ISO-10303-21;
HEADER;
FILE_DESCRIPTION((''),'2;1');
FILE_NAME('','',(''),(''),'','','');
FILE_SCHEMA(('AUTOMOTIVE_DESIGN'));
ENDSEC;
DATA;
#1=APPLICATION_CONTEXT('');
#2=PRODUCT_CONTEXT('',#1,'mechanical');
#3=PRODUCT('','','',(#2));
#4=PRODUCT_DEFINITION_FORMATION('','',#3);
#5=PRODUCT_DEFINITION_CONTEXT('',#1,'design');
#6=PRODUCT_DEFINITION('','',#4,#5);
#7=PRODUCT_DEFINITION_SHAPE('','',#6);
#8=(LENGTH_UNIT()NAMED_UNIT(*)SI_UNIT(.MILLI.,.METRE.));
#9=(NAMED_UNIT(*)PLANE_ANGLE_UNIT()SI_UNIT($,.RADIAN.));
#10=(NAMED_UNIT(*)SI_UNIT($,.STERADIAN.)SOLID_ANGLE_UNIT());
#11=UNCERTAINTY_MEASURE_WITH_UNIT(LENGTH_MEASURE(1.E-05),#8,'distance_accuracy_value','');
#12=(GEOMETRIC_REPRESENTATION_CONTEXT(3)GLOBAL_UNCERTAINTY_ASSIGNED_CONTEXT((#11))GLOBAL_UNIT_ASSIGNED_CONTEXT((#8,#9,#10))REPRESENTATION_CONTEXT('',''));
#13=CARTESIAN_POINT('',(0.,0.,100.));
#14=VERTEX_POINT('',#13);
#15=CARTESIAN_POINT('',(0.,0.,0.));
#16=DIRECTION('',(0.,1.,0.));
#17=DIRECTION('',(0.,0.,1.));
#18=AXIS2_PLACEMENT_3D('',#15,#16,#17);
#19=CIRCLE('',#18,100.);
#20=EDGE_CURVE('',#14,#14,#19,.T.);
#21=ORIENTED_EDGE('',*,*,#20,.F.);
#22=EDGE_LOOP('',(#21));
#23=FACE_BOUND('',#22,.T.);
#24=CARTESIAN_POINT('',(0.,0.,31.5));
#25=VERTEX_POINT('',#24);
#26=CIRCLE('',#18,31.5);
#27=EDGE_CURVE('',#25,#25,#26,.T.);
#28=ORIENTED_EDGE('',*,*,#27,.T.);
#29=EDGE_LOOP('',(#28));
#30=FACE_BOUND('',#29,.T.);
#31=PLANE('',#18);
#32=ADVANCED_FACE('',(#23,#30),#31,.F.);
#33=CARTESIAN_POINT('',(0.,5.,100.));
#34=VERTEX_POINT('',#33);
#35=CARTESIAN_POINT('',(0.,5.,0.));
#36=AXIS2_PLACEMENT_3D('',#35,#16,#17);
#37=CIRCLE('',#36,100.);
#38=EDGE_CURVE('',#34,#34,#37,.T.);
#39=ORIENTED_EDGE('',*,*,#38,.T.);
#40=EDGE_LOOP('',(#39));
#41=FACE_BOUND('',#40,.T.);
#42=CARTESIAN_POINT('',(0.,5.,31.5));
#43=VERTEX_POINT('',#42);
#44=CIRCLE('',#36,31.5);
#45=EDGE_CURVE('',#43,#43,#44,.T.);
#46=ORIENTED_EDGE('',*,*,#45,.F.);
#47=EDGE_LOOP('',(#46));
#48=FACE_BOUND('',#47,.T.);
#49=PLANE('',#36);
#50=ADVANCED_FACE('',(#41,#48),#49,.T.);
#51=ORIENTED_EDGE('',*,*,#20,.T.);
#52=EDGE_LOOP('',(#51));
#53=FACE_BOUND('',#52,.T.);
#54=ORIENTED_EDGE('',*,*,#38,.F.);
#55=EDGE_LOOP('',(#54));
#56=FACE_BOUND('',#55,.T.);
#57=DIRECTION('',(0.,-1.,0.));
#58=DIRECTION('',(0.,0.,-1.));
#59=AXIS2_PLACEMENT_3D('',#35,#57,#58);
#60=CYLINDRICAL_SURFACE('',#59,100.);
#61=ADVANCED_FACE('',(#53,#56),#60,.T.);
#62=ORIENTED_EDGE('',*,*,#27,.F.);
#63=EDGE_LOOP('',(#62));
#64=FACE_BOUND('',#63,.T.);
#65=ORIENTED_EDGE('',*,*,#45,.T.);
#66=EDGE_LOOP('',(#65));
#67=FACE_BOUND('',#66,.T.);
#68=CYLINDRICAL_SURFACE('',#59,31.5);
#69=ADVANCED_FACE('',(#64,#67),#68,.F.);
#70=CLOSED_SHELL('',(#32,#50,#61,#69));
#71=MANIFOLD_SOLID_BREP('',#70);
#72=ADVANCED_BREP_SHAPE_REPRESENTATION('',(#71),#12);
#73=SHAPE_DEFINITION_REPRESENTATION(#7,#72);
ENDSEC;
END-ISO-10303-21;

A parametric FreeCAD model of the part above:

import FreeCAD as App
import Part
import Sketcher
from FreeCAD import Vector

doc = App.newDocument("Part")
body = doc.addObject("PartDesign::Body", "Body")

# Sketch on XZ plane
sketch1 = body.newObject("Sketcher::SketchObject", "Sketch")
sketch1.AttachmentSupport = (doc.getObject("XZ_Plane"), [""])
sketch1.MapMode = "FlatFace"
sketch1.addGeometry([
    Part.Circle(Vector(0, 0, 0), Vector(0, 0, 1), 100),
    Part.Circle(Vector(0, 0, 0), Vector(0, 0, 1), 31.5),
], False)
sketch1.addConstraint([
    Sketcher.Constraint("Coincident", 0, 3, -1, 1),
    Sketcher.Constraint("Coincident", 1, 3, -1, 1),
    Sketcher.Constraint("Diameter", 0, 200.0),
    Sketcher.Constraint("Diameter", 1, 63.0),
])
pad1 = body.newObject("PartDesign::Pad", "Pad")
pad1.Profile = sketch1
pad1.Length = 5
pad1.Reversed = True

doc.recompute()
